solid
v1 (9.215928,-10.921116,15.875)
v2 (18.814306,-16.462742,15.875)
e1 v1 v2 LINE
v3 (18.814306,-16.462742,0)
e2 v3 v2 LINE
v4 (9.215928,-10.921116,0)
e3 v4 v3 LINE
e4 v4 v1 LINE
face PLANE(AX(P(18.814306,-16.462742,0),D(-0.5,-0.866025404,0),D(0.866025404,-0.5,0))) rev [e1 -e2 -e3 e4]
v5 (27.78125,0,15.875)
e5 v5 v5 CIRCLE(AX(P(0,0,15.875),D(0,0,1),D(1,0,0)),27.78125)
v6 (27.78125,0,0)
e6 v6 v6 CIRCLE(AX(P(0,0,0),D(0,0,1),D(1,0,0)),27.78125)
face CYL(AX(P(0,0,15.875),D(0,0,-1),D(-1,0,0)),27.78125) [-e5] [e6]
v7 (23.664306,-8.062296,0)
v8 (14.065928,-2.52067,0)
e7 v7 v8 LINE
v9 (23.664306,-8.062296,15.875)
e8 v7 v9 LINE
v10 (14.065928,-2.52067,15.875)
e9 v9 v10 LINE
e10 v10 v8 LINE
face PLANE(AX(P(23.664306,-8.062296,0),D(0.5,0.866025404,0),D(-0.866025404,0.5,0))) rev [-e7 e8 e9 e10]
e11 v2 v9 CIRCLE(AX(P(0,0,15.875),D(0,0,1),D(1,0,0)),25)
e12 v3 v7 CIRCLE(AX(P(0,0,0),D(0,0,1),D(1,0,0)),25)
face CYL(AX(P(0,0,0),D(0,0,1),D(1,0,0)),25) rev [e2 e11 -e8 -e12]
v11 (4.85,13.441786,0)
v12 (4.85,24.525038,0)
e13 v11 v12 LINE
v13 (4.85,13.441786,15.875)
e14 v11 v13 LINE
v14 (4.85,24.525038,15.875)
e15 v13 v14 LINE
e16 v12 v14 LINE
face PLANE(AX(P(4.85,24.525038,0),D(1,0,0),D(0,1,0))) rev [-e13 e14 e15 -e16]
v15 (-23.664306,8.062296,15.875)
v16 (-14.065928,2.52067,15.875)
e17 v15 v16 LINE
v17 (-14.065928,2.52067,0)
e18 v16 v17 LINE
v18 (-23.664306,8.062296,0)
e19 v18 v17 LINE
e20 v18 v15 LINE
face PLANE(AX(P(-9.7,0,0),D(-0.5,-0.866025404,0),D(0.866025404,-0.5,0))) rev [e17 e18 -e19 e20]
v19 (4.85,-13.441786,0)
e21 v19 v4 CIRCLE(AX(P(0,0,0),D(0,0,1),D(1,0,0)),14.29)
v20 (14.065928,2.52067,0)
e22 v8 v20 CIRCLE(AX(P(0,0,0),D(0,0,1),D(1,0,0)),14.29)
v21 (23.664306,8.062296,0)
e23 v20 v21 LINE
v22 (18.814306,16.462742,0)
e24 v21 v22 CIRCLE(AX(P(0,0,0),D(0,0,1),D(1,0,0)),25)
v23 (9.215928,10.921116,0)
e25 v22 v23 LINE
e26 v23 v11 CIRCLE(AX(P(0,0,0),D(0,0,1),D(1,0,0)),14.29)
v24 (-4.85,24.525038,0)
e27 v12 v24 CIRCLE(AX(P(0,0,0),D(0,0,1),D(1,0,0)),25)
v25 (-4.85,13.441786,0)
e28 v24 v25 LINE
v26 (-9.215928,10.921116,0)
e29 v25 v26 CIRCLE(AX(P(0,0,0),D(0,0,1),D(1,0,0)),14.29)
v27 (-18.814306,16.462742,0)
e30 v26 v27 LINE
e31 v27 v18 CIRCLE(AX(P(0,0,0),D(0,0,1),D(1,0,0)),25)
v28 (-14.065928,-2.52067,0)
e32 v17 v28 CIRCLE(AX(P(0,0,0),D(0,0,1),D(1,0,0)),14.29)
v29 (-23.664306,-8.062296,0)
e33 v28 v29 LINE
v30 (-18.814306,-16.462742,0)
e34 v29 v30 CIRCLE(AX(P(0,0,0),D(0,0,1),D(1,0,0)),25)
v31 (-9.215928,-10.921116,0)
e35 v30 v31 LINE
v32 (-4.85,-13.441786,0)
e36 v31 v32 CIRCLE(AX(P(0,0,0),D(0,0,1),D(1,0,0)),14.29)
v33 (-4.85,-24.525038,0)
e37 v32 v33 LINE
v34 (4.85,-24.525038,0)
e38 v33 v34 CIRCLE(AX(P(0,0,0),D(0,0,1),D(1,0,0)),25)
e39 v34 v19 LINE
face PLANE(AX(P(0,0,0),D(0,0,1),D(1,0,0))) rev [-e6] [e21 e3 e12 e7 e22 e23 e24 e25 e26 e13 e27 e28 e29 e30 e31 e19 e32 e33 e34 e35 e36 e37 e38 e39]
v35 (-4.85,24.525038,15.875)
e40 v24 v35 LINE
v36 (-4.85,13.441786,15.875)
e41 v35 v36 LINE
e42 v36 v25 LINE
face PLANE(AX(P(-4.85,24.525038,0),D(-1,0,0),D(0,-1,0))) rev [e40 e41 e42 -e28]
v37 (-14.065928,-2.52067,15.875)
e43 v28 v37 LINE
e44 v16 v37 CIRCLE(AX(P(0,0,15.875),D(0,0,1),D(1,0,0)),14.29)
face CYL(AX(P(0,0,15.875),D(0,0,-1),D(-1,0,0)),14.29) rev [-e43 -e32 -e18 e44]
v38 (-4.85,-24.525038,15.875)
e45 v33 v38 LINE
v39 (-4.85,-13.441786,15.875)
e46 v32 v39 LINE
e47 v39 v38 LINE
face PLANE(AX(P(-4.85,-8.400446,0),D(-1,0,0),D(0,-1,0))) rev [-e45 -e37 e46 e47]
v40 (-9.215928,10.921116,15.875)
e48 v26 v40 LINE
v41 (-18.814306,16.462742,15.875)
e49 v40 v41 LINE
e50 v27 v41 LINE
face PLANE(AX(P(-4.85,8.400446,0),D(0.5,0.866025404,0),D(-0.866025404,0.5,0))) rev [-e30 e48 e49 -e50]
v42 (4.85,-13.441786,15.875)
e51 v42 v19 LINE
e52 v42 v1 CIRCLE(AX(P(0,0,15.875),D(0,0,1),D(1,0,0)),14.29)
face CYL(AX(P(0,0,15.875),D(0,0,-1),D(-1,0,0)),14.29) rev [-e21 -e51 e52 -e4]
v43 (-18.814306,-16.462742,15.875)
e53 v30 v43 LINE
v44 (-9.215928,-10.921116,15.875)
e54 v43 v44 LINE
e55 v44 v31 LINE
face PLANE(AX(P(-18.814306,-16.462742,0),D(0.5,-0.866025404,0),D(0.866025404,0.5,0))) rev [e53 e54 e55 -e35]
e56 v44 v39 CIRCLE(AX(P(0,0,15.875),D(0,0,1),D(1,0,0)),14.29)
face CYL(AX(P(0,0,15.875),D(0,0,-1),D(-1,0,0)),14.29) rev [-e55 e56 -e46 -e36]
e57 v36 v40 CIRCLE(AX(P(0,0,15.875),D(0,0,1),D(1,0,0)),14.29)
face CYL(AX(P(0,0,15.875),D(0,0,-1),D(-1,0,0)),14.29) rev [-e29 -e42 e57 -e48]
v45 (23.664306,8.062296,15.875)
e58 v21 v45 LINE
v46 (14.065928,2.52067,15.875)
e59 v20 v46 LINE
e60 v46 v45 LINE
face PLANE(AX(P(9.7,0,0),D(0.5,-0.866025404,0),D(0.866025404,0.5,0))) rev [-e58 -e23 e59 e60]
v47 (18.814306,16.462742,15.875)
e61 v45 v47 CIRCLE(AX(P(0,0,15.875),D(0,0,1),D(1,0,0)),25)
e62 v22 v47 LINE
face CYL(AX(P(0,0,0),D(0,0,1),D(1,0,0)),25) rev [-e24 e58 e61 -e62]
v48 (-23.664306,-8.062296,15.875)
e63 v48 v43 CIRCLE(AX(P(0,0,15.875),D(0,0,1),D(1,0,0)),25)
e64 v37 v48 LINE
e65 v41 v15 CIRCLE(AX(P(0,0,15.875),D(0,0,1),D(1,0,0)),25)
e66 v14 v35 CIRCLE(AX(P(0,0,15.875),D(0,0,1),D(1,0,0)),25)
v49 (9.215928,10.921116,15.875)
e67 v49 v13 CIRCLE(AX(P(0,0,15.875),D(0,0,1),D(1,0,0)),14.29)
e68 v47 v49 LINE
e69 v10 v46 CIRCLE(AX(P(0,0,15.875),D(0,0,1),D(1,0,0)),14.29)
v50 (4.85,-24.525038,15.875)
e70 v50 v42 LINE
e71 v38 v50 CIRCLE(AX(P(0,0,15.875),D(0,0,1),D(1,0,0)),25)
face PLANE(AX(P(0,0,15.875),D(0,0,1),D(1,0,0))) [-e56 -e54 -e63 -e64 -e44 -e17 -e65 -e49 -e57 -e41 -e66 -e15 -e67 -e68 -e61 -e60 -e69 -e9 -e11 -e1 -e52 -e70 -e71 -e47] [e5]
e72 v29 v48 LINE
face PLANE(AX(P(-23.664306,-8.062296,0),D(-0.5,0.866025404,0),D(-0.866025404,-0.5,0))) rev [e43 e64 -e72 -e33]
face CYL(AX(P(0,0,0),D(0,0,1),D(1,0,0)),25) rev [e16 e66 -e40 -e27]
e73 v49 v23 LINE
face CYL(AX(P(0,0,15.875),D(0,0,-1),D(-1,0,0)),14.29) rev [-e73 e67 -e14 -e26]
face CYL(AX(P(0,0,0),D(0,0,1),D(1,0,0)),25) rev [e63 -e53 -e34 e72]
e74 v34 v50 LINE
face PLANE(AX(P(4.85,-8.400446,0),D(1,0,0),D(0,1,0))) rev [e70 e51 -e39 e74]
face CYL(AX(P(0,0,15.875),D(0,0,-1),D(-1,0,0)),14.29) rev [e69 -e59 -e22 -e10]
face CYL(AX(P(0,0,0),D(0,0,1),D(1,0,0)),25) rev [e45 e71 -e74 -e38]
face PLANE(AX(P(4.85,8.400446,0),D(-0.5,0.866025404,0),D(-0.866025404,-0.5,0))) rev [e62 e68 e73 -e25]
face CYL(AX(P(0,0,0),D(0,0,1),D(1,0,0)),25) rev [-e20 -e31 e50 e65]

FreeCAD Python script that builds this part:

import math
import FreeCAD as App
import Part
import Sketcher

V = App.Vector
Q = App.Units.Quantity

doc = App.newDocument("Part")
body = doc.addObject("PartDesign::Body", "Body")

# Sketch on XY plane
sketch1 = body.newObject("Sketcher::SketchObject", "Sketch")
sketch1.AttachmentSupport = (doc.getObject("XY_Plane"), [""])
sketch1.MapMode = "FlatFace"
sketch1.addGeometry([
    Part.Circle(V(0, 0, 0), V(0, 0, 1), 28),
    Part.Circle(V(0, 0, 0), V(0, 0, 1), 14),
], False)
sketch1.addConstraint([
    Sketcher.Constraint("Coincident", 0, 3, -1, 1),
    Sketcher.Constraint("Coincident", 1, 3, -1, 1),
    Sketcher.Constraint("Diameter", 0, Q("2.1875 in")),
    Sketcher.Constraint("Diameter", 1, 28.58),
])
pad1 = body.newObject("PartDesign::Pad", "Pad")
pad1.Profile = sketch1
pad1.Length = Q("0.625 in")

# Sketch on XY plane
sketch2 = body.newObject("Sketcher::SketchObject", "Sketch001")
sketch2.AttachmentSupport = (doc.getObject("XY_Plane"), [""])
sketch2.MapMode = "FlatFace"
sketch2.AttachmentOffset = App.Placement(V(0, 0, 0.625 * 25.4), App.Rotation())
sketch2.addGeometry([
    Part.LineSegment(V(5, -8, 0), V(19, -16, 0)),  # 0
    Part.ArcOfCircle(Part.Circle(V(0, 0, 0), V(0, 0, 1), 25), math.radians(-41), math.radians(-19)),  # 1
    Part.LineSegment(V(24, -8, 0), V(10, 0, 0)),  # 2
    Part.LineSegment(V(10, 0, 0), V(24, 8, 0)),  # 3
    Part.ArcOfCircle(Part.Circle(V(0, 0, 0), V(0, 0, 1), 25), math.radians(19), math.radians(41)),  # 4
    Part.LineSegment(V(19, 16, 0), V(5, 8, 0)),  # 5
    Part.LineSegment(V(5, 8, 0), V(5, 25, 0)),  # 6
    Part.ArcOfCircle(Part.Circle(V(0, 0, 0), V(0, 0, 1), 25), math.radians(79), math.radians(101)),  # 7
    Part.LineSegment(V(-5, 25, 0), V(-5, 8, 0)),  # 8
    Part.LineSegment(V(-5, 8, 0), V(-19, 16, 0)),  # 9
    Part.ArcOfCircle(Part.Circle(V(0, 0, 0), V(0, 0, 1), 25), math.radians(139), math.radians(161)),  # 10
    Part.LineSegment(V(-24, 8, 0), V(-10, 0, 0)),  # 11
    Part.LineSegment(V(-10, 0, 0), V(-24, -8, 0)),  # 12
    Part.ArcOfCircle(Part.Circle(V(0, 0, 0), V(0, 0, 1), 25), math.radians(-161), math.radians(-139)),  # 13
    Part.LineSegment(V(-19, -16, 0), V(-5, -8, 0)),  # 14
    Part.LineSegment(V(-5, -8, 0), V(-5, -25, 0)),  # 15
    Part.ArcOfCircle(Part.Circle(V(0, 0, 0), V(0, 0, 1), 25), math.radians(-101), math.radians(-79)),  # 16
    Part.LineSegment(V(5, -25, 0), V(5, -8, 0)),  # 17
], False)
sketch2.addConstraint([
    Sketcher.Constraint("Coincident", 0, 2, 1, 1),
    Sketcher.Constraint("Coincident", 1, 2, 2, 1),
    Sketcher.Constraint("Coincident", 2, 2, 3, 1),
    Sketcher.Constraint("Coincident", 3, 2, 4, 1),
    Sketcher.Constraint("Coincident", 4, 2, 5, 1),
    Sketcher.Constraint("Coincident", 5, 2, 6, 1),
    Sketcher.Constraint("Coincident", 6, 2, 7, 1),
    Sketcher.Constraint("Coincident", 7, 2, 8, 1),
    Sketcher.Constraint("Coincident", 8, 2, 9, 1),
    Sketcher.Constraint("Coincident", 9, 2, 10, 1),
    Sketcher.Constraint("Coincident", 10, 2, 11, 1),
    Sketcher.Constraint("Coincident", 11, 2, 12, 1),
    Sketcher.Constraint("Coincident", 12, 2, 13, 1),
    Sketcher.Constraint("Coincident", 13, 2, 14, 1),
    Sketcher.Constraint("Coincident", 14, 2, 15, 1),
    Sketcher.Constraint("Coincident", 15, 2, 16, 1),
    Sketcher.Constraint("Coincident", 16, 2, 17, 1),
    Sketcher.Constraint("Coincident", 17, 2, 0, 1),
    Sketcher.Constraint("Vertical", 6),
    Sketcher.Constraint("Vertical", 8),
    Sketcher.Constraint("Vertical", 15),
    Sketcher.Constraint("Vertical", 17),
    Sketcher.Constraint("Coincident", 1, 3, -1, 1),
    Sketcher.Constraint("Coincident", 4, 3, -1, 1),
    Sketcher.Constraint("Coincident", 7, 3, -1, 1),
    Sketcher.Constraint("Coincident", 10, 3, -1, 1),
    Sketcher.Constraint("Coincident", 13, 3, -1, 1),
    Sketcher.Constraint("Coincident", 16, 3, -1, 1),
    Sketcher.Constraint("Equal", 1, 4),
    Sketcher.Constraint("Equal", 4, 7),
    Sketcher.Constraint("Equal", 7, 10),
    Sketcher.Constraint("Equal", 10, 13),
    Sketcher.Constraint("Equal", 13, 16),
    Sketcher.Constraint("Symmetric", 2, 2, 11, 2, -1, 1),
    Sketcher.Constraint("Symmetric", 5, 2, 14, 2, -1, 1),
    Sketcher.Constraint("Symmetric", 8, 2, 17, 2, -1, 1),
    Sketcher.Constraint("Symmetric", 5, 2, 8, 2, -2),
    Sketcher.Constraint("PointOnObject", 2, 2, -1),
    Sketcher.Constraint("Parallel", 0, 2),
    Sketcher.Constraint("Parallel", 3, 5),
    Sketcher.Constraint("Parallel", 2, 9),
    Sketcher.Constraint("Parallel", 9, 11),
    Sketcher.Constraint("Parallel", 5, 12),
    Sketcher.Constraint("Parallel", 12, 14),
    Sketcher.Constraint("Horizontal", 4, 2, 9, 2),
    Sketcher.Constraint("Equal", 0, 2),
    Sketcher.Constraint("Angle", 0, Q("-30 deg")),
    Sketcher.Constraint("Radius", 1, 25.0),
    Sketcher.Constraint("DistanceY", 6, 1, 6, 2, 16.124592),
    Sketcher.Constraint("DistanceX", -1, 1, 2, 2, 9.7),
])
pocket1 = body.newObject("PartDesign::Pocket", "Pocket")
pocket1.Profile = sketch2
pocket1.Type = "ThroughAll"

doc.recompute()
